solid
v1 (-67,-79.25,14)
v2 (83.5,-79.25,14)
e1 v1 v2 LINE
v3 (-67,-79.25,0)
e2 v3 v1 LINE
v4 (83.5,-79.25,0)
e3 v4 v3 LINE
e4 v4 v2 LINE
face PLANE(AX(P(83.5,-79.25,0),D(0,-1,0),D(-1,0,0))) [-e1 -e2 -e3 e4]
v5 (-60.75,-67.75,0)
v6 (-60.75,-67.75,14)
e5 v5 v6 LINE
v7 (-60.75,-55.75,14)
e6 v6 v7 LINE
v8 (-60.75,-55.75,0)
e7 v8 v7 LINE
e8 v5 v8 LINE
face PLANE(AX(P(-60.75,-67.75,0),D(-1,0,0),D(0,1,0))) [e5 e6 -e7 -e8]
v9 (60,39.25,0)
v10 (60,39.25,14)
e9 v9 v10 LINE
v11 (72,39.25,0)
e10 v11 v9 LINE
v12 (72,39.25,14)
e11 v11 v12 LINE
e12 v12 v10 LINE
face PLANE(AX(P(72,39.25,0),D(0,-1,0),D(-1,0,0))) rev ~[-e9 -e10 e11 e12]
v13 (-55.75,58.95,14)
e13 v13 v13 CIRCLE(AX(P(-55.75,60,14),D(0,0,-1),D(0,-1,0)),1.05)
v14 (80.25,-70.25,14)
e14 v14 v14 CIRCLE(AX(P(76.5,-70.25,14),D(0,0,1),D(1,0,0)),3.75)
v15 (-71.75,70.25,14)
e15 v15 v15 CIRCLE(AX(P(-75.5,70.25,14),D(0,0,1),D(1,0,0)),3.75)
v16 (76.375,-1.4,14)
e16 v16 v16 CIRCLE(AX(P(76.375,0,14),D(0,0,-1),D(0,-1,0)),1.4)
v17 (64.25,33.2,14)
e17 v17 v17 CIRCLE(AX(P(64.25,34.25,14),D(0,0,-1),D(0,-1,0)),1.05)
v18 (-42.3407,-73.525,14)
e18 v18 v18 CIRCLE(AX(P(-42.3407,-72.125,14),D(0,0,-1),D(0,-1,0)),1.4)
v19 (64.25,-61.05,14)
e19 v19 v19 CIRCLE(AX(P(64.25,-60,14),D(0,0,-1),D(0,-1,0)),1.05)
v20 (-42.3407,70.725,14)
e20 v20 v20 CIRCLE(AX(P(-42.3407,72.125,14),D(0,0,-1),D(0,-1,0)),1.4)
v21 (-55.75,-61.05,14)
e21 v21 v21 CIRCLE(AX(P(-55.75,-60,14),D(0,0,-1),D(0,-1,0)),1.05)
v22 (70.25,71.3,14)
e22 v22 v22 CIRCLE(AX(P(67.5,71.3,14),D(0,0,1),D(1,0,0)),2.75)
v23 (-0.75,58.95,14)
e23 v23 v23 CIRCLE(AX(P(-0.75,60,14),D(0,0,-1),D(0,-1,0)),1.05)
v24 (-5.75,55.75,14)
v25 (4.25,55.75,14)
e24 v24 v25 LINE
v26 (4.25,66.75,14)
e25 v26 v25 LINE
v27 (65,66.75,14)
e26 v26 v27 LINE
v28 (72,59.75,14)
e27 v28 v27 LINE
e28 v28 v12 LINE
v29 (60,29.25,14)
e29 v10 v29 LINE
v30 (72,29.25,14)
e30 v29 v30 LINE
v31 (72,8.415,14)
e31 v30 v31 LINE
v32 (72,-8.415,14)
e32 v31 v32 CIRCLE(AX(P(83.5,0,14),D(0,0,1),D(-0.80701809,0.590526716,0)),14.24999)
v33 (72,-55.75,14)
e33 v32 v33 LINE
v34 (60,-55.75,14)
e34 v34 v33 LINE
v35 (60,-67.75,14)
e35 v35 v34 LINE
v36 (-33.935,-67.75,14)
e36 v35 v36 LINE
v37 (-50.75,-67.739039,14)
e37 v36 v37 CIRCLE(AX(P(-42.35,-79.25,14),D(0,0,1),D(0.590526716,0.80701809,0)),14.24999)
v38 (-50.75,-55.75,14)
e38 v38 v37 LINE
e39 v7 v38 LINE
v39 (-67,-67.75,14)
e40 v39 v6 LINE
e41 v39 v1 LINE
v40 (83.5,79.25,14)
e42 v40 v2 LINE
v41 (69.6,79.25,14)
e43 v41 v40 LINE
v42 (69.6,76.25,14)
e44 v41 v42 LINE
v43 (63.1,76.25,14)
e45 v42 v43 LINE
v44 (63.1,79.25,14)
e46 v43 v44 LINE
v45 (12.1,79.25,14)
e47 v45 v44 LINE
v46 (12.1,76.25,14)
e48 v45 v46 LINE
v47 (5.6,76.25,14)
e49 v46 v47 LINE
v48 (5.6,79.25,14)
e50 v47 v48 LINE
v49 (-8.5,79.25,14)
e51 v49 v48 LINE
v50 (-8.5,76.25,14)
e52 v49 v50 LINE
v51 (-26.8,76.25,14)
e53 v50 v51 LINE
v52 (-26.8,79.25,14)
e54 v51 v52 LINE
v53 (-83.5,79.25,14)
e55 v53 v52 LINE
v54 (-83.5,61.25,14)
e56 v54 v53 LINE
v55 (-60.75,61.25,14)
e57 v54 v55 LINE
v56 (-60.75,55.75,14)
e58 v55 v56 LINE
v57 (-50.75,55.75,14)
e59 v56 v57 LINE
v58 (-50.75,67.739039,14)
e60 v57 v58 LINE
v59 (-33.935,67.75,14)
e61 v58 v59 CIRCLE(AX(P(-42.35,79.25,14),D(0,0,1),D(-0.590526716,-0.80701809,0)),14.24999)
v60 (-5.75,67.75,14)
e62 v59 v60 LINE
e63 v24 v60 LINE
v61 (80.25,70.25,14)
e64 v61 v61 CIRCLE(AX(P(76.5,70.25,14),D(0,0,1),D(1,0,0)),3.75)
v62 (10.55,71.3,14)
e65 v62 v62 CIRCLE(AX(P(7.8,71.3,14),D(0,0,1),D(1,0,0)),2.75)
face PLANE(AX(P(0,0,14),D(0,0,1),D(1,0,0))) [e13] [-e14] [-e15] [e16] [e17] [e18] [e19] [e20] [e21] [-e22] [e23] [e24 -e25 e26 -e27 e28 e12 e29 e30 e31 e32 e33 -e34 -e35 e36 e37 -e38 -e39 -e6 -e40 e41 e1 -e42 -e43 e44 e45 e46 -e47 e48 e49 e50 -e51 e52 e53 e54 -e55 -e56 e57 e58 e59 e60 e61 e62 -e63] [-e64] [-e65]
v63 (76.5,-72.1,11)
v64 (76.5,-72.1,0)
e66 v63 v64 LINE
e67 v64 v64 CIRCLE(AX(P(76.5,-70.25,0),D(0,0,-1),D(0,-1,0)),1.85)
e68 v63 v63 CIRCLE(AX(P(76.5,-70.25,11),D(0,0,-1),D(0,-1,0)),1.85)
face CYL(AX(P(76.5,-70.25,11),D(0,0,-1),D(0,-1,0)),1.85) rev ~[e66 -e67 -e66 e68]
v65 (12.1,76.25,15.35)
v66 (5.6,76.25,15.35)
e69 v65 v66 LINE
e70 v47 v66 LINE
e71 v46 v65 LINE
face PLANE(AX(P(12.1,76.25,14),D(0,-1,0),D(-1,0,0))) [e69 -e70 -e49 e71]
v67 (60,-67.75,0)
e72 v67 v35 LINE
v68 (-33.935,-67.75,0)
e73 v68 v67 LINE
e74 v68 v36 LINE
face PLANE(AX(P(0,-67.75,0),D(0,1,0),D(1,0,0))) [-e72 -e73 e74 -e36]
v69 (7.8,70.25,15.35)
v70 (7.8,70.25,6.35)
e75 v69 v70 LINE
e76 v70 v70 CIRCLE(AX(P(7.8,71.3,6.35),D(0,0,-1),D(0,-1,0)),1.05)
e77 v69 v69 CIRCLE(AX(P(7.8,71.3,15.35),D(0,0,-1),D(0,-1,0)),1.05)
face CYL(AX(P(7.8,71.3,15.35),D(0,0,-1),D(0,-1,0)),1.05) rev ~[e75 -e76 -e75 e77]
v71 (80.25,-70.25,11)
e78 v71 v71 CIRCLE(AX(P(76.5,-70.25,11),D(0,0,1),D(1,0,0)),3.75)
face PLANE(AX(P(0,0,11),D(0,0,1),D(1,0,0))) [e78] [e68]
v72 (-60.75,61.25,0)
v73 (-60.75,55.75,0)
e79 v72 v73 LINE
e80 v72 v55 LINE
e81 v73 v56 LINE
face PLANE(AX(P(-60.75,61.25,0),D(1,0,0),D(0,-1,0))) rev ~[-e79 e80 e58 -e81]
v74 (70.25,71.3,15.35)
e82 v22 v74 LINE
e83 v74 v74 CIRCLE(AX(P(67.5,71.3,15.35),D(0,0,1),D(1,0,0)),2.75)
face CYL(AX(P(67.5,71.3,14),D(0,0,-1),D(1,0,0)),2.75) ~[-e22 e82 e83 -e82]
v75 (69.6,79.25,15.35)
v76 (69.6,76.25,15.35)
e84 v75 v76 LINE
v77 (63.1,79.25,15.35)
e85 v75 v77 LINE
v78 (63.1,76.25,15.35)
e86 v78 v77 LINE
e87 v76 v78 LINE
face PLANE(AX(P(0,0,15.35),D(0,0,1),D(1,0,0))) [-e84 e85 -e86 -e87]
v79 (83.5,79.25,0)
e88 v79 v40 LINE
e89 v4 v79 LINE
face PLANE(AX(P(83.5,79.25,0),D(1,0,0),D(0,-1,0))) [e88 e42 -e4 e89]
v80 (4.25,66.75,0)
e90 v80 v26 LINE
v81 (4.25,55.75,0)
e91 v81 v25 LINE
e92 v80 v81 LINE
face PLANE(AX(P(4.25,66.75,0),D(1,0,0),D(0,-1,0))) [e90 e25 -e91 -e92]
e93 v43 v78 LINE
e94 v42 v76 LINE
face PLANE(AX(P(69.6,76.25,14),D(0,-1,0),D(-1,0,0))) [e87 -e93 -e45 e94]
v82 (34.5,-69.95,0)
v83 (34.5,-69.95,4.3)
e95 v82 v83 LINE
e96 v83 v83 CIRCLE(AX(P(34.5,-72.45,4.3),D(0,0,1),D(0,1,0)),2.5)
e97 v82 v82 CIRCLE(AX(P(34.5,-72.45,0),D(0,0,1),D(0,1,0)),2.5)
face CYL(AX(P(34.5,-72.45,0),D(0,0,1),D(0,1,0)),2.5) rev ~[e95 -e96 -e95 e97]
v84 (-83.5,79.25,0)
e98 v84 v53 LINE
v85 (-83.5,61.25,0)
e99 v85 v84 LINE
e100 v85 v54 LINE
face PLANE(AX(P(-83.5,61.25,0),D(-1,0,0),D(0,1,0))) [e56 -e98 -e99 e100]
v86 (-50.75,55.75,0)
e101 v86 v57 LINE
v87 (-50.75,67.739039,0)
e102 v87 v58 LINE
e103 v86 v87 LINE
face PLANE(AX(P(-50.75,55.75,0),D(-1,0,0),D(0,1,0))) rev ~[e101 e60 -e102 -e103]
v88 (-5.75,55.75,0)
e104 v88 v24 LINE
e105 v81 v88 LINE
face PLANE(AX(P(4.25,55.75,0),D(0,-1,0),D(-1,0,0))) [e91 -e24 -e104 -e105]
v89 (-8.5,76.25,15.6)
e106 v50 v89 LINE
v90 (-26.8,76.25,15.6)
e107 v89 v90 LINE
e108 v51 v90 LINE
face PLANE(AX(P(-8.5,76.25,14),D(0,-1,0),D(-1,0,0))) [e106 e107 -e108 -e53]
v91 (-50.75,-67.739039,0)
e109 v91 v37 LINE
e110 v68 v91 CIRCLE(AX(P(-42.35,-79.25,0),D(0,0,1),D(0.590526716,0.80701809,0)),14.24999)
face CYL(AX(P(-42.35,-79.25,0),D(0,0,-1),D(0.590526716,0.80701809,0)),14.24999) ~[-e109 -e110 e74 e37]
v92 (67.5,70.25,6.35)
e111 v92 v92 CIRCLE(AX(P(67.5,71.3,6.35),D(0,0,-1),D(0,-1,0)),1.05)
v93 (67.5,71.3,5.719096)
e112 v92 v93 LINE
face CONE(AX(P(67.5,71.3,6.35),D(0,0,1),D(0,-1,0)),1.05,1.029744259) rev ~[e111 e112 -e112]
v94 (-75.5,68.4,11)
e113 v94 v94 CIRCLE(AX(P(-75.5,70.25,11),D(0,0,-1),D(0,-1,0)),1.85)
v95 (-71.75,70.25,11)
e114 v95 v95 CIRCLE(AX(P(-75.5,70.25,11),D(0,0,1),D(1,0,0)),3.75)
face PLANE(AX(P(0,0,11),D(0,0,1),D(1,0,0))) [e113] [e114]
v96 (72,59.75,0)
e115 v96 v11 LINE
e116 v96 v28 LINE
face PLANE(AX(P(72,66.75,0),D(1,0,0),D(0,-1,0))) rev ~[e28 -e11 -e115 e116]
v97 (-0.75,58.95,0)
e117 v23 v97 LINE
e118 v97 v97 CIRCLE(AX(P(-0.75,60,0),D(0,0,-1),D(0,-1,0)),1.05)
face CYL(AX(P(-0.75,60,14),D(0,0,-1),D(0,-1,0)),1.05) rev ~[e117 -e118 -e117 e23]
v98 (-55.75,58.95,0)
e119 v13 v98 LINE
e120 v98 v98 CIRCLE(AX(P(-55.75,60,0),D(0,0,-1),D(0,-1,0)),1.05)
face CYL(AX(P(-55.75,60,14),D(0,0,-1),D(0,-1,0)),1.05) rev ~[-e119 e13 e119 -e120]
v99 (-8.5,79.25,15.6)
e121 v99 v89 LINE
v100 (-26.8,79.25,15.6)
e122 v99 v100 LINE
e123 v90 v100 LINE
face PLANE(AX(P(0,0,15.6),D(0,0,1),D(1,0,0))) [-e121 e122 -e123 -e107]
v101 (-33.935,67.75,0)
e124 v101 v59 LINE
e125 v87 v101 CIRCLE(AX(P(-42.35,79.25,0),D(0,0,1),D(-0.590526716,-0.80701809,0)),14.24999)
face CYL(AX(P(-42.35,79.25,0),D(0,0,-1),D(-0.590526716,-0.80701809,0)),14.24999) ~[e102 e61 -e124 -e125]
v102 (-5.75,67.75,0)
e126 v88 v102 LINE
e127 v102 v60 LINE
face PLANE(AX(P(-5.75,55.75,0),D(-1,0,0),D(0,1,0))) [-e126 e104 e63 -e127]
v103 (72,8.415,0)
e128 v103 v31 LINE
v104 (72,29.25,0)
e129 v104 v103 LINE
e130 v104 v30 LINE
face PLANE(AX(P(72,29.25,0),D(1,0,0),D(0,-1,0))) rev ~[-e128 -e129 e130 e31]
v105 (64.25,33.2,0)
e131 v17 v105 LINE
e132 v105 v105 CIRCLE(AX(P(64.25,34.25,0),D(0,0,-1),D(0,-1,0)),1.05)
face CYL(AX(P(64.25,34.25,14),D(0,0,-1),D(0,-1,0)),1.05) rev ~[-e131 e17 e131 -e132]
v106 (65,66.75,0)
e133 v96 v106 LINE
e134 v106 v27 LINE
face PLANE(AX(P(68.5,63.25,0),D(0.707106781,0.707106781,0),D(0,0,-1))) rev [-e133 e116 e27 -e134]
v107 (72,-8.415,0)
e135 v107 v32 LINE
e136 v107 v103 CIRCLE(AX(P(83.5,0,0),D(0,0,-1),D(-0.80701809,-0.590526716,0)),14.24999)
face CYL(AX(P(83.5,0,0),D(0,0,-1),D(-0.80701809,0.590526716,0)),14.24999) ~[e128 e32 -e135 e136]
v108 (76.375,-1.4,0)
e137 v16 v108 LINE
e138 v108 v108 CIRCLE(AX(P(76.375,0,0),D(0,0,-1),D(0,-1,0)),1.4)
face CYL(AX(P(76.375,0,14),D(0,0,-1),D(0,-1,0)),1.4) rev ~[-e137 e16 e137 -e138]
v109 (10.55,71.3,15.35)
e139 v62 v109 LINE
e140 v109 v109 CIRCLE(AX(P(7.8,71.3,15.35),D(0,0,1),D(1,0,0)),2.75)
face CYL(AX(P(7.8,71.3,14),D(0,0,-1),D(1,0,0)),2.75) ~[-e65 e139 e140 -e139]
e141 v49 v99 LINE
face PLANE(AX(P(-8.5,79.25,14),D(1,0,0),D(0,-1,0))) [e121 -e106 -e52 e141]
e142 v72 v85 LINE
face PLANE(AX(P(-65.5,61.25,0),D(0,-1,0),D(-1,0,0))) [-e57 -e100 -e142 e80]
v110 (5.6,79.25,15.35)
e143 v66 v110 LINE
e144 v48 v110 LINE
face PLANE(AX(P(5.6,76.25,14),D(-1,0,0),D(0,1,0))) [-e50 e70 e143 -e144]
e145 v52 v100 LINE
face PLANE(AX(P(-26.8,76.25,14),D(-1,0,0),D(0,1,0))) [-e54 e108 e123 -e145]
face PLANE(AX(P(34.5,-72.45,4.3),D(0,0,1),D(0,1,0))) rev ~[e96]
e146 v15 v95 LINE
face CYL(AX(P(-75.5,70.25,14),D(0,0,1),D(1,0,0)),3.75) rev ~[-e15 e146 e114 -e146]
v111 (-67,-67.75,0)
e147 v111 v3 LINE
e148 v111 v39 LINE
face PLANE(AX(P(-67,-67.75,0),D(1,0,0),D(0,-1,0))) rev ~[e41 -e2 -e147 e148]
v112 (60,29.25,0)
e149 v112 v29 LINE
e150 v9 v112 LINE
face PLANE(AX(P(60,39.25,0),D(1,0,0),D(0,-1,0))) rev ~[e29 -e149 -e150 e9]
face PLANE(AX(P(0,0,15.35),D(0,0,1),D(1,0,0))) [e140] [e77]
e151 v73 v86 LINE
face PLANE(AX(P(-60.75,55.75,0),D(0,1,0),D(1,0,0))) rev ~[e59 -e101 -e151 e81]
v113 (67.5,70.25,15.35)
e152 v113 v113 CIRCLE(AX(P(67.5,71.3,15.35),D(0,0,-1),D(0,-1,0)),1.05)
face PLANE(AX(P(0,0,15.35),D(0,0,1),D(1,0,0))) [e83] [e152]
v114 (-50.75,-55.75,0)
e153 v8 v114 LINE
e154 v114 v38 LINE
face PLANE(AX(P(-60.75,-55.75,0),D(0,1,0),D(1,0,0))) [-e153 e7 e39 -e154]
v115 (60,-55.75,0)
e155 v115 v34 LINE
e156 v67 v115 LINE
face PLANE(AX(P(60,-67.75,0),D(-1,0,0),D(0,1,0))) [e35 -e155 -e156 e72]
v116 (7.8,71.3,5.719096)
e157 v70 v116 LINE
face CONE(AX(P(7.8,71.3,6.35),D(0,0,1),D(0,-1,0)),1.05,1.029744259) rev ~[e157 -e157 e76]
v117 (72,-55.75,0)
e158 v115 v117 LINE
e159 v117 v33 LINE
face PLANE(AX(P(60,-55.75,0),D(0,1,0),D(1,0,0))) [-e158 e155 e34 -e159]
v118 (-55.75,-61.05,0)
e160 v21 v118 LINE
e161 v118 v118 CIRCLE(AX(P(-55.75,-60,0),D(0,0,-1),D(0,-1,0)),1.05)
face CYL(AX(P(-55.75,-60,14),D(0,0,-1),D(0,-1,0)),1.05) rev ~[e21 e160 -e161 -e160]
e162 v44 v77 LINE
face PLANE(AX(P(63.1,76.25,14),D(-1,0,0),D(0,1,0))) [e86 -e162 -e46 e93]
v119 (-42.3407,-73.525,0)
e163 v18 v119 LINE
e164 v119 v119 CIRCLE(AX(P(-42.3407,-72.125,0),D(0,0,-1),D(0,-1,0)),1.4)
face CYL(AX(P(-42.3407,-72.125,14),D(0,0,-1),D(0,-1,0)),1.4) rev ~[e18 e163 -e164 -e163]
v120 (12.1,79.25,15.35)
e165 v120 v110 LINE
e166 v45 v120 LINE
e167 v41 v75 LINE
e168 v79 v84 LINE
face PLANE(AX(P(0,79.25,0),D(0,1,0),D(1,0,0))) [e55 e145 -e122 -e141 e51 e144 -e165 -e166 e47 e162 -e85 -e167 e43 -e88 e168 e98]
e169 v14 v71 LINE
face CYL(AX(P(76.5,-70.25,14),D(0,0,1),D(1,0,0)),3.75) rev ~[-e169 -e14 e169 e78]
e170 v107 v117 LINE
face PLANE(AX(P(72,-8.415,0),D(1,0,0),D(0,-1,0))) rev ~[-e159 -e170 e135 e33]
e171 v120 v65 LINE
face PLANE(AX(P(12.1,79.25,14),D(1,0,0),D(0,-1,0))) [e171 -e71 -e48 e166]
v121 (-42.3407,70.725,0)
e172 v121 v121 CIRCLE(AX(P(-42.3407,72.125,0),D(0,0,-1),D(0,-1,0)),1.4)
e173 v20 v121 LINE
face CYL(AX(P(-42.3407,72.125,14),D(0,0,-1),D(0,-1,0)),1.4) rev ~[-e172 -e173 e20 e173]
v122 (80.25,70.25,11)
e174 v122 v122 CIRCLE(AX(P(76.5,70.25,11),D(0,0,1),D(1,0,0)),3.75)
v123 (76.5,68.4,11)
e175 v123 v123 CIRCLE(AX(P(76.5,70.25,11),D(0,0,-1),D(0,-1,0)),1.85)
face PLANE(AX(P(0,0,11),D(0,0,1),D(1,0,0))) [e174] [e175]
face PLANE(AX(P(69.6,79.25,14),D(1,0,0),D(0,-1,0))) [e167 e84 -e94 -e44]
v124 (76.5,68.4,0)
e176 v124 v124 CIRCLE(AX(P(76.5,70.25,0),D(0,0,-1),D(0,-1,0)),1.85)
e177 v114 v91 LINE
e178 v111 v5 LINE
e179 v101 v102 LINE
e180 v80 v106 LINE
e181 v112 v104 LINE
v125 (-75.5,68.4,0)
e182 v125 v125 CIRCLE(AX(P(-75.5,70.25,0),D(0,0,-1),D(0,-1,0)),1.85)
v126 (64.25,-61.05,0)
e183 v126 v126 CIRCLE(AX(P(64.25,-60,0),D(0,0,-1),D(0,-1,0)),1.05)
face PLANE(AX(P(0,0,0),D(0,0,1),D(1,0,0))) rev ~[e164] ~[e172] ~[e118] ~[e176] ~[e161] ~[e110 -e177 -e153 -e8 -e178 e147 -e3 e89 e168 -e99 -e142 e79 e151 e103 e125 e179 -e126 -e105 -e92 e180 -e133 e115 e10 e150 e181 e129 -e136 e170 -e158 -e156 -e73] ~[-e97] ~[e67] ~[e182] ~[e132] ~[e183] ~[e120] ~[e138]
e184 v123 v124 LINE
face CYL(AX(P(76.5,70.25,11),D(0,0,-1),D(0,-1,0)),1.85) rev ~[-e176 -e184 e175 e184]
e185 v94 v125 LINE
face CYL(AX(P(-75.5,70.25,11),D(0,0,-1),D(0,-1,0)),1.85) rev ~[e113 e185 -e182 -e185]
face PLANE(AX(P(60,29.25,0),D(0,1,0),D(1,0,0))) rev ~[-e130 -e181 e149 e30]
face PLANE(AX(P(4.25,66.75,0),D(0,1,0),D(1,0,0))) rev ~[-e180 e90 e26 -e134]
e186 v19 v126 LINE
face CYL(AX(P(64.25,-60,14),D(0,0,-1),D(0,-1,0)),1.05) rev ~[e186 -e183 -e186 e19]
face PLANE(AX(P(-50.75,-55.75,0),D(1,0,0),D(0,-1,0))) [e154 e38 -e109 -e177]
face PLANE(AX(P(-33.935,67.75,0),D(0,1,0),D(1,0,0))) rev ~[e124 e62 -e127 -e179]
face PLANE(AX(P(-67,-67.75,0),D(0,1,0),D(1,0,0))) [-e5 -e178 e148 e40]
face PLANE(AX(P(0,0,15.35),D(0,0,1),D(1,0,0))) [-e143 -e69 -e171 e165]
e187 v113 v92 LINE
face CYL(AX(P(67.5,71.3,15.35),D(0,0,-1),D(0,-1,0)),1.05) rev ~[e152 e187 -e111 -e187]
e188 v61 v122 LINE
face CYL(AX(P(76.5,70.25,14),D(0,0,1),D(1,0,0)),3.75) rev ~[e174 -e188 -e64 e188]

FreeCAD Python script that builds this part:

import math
import FreeCAD as App
import Part
import Sketcher
Q = App.Units.Quantity


def edges_at(feature, points):
    """Names of the edges that pass closest to the given points."""
    edges = feature.Shape.Edges
    near = lambda p: min(range(len(edges)), key=lambda i: edges[i].distToShape(Part.Vertex(*p))[0])
    return sorted({f"Edge{near(p) + 1}" for p in points})


def add_polygon(sketch, points):
    """Adds a closed chain of lines whose ends are joined by coincident constraints."""
    first, n = sketch.GeometryCount, len(points)
    for a, b in zip(points, points[1:] + points[:1]):
        sketch.addGeometry(Part.LineSegment(App.Vector(*a, 0), App.Vector(*b, 0)), False)
    for i in range(n):
        sketch.addConstraint(Sketcher.Constraint("Coincident", first + i, 2, first + (i + 1) % n, 1))

doc = App.newDocument("Part")
body = doc.addObject("PartDesign::Body", "Body")

sketch1 = body.newObject("Sketcher::SketchObject", "Sketch")
sketch1.AttachmentSupport = (doc.getObject("XY_Plane"), [""])
sketch1.MapMode = "FlatFace"
sketch1.addGeometry([
    Part.LineSegment(App.Vector(84, 79, 0), App.Vector(-84, 79, 0)),
    Part.LineSegment(App.Vector(-84, 79, 0), App.Vector(-84, 61, 0)),
    Part.LineSegment(App.Vector(-84, 61, 0), App.Vector(-61, 61, 0)),
    Part.LineSegment(App.Vector(-61, 61, 0), App.Vector(-61, 56, 0)),
    Part.LineSegment(App.Vector(-61, 56, 0), App.Vector(-51, 56, 0)),
    Part.LineSegment(App.Vector(-51, 56, 0), App.Vector(-51, 68, 0)),
    Part.ArcOfCircle(Part.Circle(App.Vector(-42, 79, 0), App.Vector(0, 0, 1), 14), math.radians(-126), math.radians(-54)),
    Part.LineSegment(App.Vector(-34, 68, 0), App.Vector(-6, 68, 0)),
    Part.LineSegment(App.Vector(-6, 68, 0), App.Vector(-6, 56, 0)),
    Part.LineSegment(App.Vector(-6, 56, 0), App.Vector(4, 56, 0)),
    Part.LineSegment(App.Vector(4, 56, 0), App.Vector(4, 67, 0)),
    Part.LineSegment(App.Vector(4, 67, 0), App.Vector(72, 67, 0)),
    Part.LineSegment(App.Vector(72, 67, 0), App.Vector(72, 39, 0)),
    Part.LineSegment(App.Vector(72, 39, 0), App.Vector(60, 39, 0)),
    Part.LineSegment(App.Vector(60, 39, 0), App.Vector(60, 29, 0)),
    Part.LineSegment(App.Vector(60, 29, 0), App.Vector(72, 29, 0)),
    Part.LineSegment(App.Vector(72, 29, 0), App.Vector(72, 8, 0)),
    Part.ArcOfCircle(Part.Circle(App.Vector(84, 0, 0), App.Vector(0, 0, 1), 14), math.radians(144), math.radians(216)),
    Part.LineSegment(App.Vector(72, -8, 0), App.Vector(72, -56, 0)),
    Part.LineSegment(App.Vector(72, -56, 0), App.Vector(60, -56, 0)),
    Part.LineSegment(App.Vector(60, -56, 0), App.Vector(60, -68, 0)),
    Part.LineSegment(App.Vector(60, -68, 0), App.Vector(-34, -68, 0)),
    Part.ArcOfCircle(Part.Circle(App.Vector(-42, -79, 0), App.Vector(0, 0, 1), 14), math.radians(54), math.radians(126)),
    Part.LineSegment(App.Vector(-51, -68, 0), App.Vector(-51, -56, 0)),
    Part.LineSegment(App.Vector(-51, -56, 0), App.Vector(-61, -56, 0)),
    Part.LineSegment(App.Vector(-61, -56, 0), App.Vector(-61, -68, 0)),
    Part.LineSegment(App.Vector(-61, -68, 0), App.Vector(-67, -68, 0)),
    Part.LineSegment(App.Vector(-67, -68, 0), App.Vector(-67, -79, 0)),
    Part.LineSegment(App.Vector(-67, -79, 0), App.Vector(84, -79, 0)),
    Part.LineSegment(App.Vector(84, -79, 0), App.Vector(84, 79, 0)),
], False)
sketch1.addConstraint([
    Sketcher.Constraint("Coincident", 0, 2, 1, 1),
    Sketcher.Constraint("Coincident", 1, 2, 2, 1),
    Sketcher.Constraint("Coincident", 2, 2, 3, 1),
    Sketcher.Constraint("Coincident", 3, 2, 4, 1),
    Sketcher.Constraint("Coincident", 4, 2, 5, 1),
    Sketcher.Constraint("Coincident", 5, 2, 6, 1),
    Sketcher.Constraint("Coincident", 6, 2, 7, 1),
    Sketcher.Constraint("Coincident", 7, 2, 8, 1),
    Sketcher.Constraint("Coincident", 8, 2, 9, 1),
    Sketcher.Constraint("Coincident", 9, 2, 10, 1),
    Sketcher.Constraint("Coincident", 10, 2, 11, 1),
    Sketcher.Constraint("Coincident", 11, 2, 12, 1),
    Sketcher.Constraint("Coincident", 12, 2, 13, 1),
    Sketcher.Constraint("Coincident", 13, 2, 14, 1),
    Sketcher.Constraint("Coincident", 14, 2, 15, 1),
    Sketcher.Constraint("Coincident", 15, 2, 16, 1),
    Sketcher.Constraint("Coincident", 16, 2, 17, 1),
    Sketcher.Constraint("Coincident", 17, 2, 18, 1),
    Sketcher.Constraint("Coincident", 18, 2, 19, 1),
    Sketcher.Constraint("Coincident", 19, 2, 20, 1),
    Sketcher.Constraint("Coincident", 20, 2, 21, 1),
    Sketcher.Constraint("Coincident", 21, 2, 22, 1),
    Sketcher.Constraint("Coincident", 22, 2, 23, 1),
    Sketcher.Constraint("Coincident", 23, 2, 24, 1),
    Sketcher.Constraint("Coincident", 24, 2, 25, 1),
    Sketcher.Constraint("Coincident", 25, 2, 26, 1),
    Sketcher.Constraint("Coincident", 26, 2, 27, 1),
    Sketcher.Constraint("Coincident", 27, 2, 28, 1),
    Sketcher.Constraint("Coincident", 28, 2, 29, 1),
    Sketcher.Constraint("Coincident", 29, 2, 0, 1),
    Sketcher.Constraint("Horizontal", 0),
    Sketcher.Constraint("Vertical", 1),
    Sketcher.Constraint("Horizontal", 2),
    Sketcher.Constraint("Vertical", 3),
    Sketcher.Constraint("Horizontal", 4),
    Sketcher.Constraint("Vertical", 5),
    Sketcher.Constraint("Horizontal", 7),
    Sketcher.Constraint("Vertical", 8),
    Sketcher.Constraint("Horizontal", 9),
    Sketcher.Constraint("Vertical", 10),
    Sketcher.Constraint("Horizontal", 11),
    Sketcher.Constraint("Vertical", 12),
    Sketcher.Constraint("Horizontal", 13),
    Sketcher.Constraint("Vertical", 14),
    Sketcher.Constraint("Horizontal", 15),
    Sketcher.Constraint("Vertical", 16),
    Sketcher.Constraint("Vertical", 18),
    Sketcher.Constraint("Horizontal", 19),
    Sketcher.Constraint("Vertical", 20),
    Sketcher.Constraint("Horizontal", 21),
    Sketcher.Constraint("Vertical", 23),
    Sketcher.Constraint("Horizontal", 24),
    Sketcher.Constraint("Vertical", 25),
    Sketcher.Constraint("Horizontal", 26),
    Sketcher.Constraint("Vertical", 27),
    Sketcher.Constraint("Horizontal", 28),
    Sketcher.Constraint("Vertical", 29),
    Sketcher.Constraint("Equal", 6, 17),
    Sketcher.Constraint("Equal", 17, 22),
    Sketcher.Constraint("Symmetric", 0, 2, 28, 2, -1, 1),
    Sketcher.Constraint("Symmetric", 6, 3, 22, 3, -1),
    Sketcher.Constraint("Symmetric", 16, 2, 17, 2, -1),
    Sketcher.Constraint("Symmetric", 4, 2, 23, 2, -1),
    Sketcher.Constraint("Horizontal", 6, 3, 0, 2),
    Sketcher.Constraint("Horizontal", 4, 2, 8, 2),
    Sketcher.Constraint("Horizontal", 19, 2, 23, 2),
    Sketcher.Constraint("Horizontal", 21, 2, 25, 2),
    Sketcher.Constraint("Vertical", 12, 2, 15, 2),
    Sketcher.Constraint("Vertical", 14, 2, 19, 2),
    Sketcher.Constraint("Vertical", 6, 2, 21, 2),
    Sketcher.Constraint("Vertical", 3, 2, 24, 2),
    Sketcher.Constraint("Vertical", 17, 3, 28, 2),
    Sketcher.Constraint("Equal", 4, 9),
    Sketcher.Constraint("Equal", 19, 8),
    Sketcher.Constraint("Equal", 24, 14),
    Sketcher.Constraint("DistanceX", 4, 1, 4, 2, Q("10 mm")),
    Sketcher.Constraint("DistanceX", 13, 2, 13, 1, Q("12 mm")),
    Sketcher.Constraint("DistanceY", 1, 2, 1, 1, Q("18 mm")),
    Sketcher.Constraint("Radius", 6, Q("14.25 mm")),
    Sketcher.Constraint("DistanceY", 27, 2, 27, 1, Q("11.5 mm")),
    Sketcher.Constraint("DistanceY", 29, 1, 29, 2, Q("158.5 mm")),
    Sketcher.Constraint("DistanceX", 26, 2, -1, 1, Q("67 mm")),
    Sketcher.Constraint("DistanceY", 12, 2, 29, 2, Q("40 mm")),
    Sketcher.Constraint("DistanceX", 11, 1, 11, 2, Q("67.75 mm")),
    Sketcher.Constraint("DistanceX", -1, 1, 17, 3, Q("83.5 mm")),
    Sketcher.Constraint("DistanceY", 10, 2, 6, 3, Q("12.5 mm")),
    Sketcher.Constraint("DistanceX", 11, 2, 17, 3, Q("11.5 mm")),
    Sketcher.Constraint("DistanceX", 6, 3, -1, 1, Q("42.35 mm")),
    Sketcher.Constraint("DistanceX", 4, 2, -1, 1, Q("50.75 mm")),
])
pad1 = body.newObject("PartDesign::Pad", "Pad")
pad1.Profile = sketch1
pad1.Length = 14
doc.recompute()

chamfer = body.newObject("PartDesign::Chamfer", "Chamfer")
chamfer.Base = (pad1, edges_at(pad1, [(72, 66.75, 7)]))
chamfer.Size = 7

sketch2 = body.newObject("Sketcher::SketchObject", "Sketch001")
sketch2.AttachmentSupport = (doc.getObject("XY_Plane"), [""])
sketch2.MapMode = "FlatFace"
sketch2.AttachmentOffset = App.Placement(App.Vector(0, 0, 14), App.Rotation())
sketch2.addGeometry([
    Part.Circle(App.Vector(7.8, 71.3, 0), App.Vector(0, 0, 1), 2.8),
    Part.Circle(App.Vector(67.5, 71.3, 0), App.Vector(0, 0, 1), 2.8),
], False)
sketch2.addConstraint([
    Sketcher.Constraint("Equal", 0, 1),
    Sketcher.Constraint("Horizontal", 0, 3, 1, 3),
    Sketcher.Constraint("Diameter", 0, Q("5.5 mm")),
    Sketcher.Constraint("DistanceX", 0, 3, 1, 3, Q("59.7 mm")),
    Sketcher.Constraint("DistanceX", -1, 1, 0, 3, Q("7.8 mm")),
    Sketcher.Constraint("DistanceY", -1, 1, 0, 3, Q("71.3 mm")),
])
pad2 = body.newObject("PartDesign::Pad", "Pad001")
pad2.Profile = sketch2
pad2.Length = 1.35

sketch3 = body.newObject("Sketcher::SketchObject", "Sketch002")
sketch3.AttachmentSupport = (doc.getObject("XY_Plane"), [""])
sketch3.MapMode = "FlatFace"
sketch3.AttachmentOffset = App.Placement(App.Vector(0, 0, 15.35), App.Rotation())
sketch3.addGeometry([
    Part.Circle(App.Vector(7.8, 71.3, 0), App.Vector(0, 0, 1), 1.1),
    Part.Circle(App.Vector(67.5, 71.3, 0), App.Vector(0, 0, 1), 1.1),
], False)
sketch3.addConstraint([
    Sketcher.Constraint("Equal", 0, 1),
    Sketcher.Constraint("Horizontal", 0, 3, 1, 3),
    Sketcher.Constraint("Diameter", 0, Q("2.1 mm")),
    Sketcher.Constraint("DistanceX", -1, 1, 0, 3, Q("7.8 mm")),
    Sketcher.Constraint("DistanceY", -1, 1, 0, 3, Q("71.3 mm")),
    Sketcher.Constraint("DistanceX", -1, 1, 1, 3, Q("67.5 mm")),
])
doc.recompute()
hole = body.newObject("PartDesign::Hole", "Hole")
hole.Profile = sketch3
hole.ThreadType = "None"
hole.Diameter = 2.1
hole.DepthType = "Dimension"
hole.Depth = 9
hole.DrillPoint = "Angled"
hole.DrillPointAngle = 118

sketch4 = body.newObject("Sketcher::SketchObject", "Sketch003")
sketch4.AttachmentSupport = (doc.getObject("XY_Plane"), [""])
sketch4.MapMode = "FlatFace"
sketch4.AttachmentOffset = App.Placement(App.Vector(0, 0, 14), App.Rotation())
sketch4.addGeometry([
    Part.Circle(App.Vector(-75.5, 70.2, 0), App.Vector(0, 0, 1), 3.8),
    Part.Circle(App.Vector(76.5, 70.2, 0), App.Vector(0, 0, 1), 3.8),
    Part.Circle(App.Vector(76.5, -70.2, 0), App.Vector(0, 0, 1), 3.8),
], False)
sketch4.addConstraint([
    Sketcher.Constraint("Equal", 0, 1),
    Sketcher.Constraint("Equal", 1, 2),
    Sketcher.Constraint("Symmetric", 1, 3, 2, 3, -1),
    Sketcher.Constraint("Horizontal", 0, 3, 1, 3),
    Sketcher.Constraint("Diameter", 0, Q("7.5 mm")),
    Sketcher.Constraint("DistanceX", 0, 3, 1, 3, Q("152 mm")),
    Sketcher.Constraint("DistanceX", 0, 3, -1, 1, Q("75.5 mm")),
    Sketcher.Constraint("DistanceY", 2, 3, 1, 3, Q("140.5 mm")),
])
pocket1 = body.newObject("PartDesign::Pocket", "Pocket")
pocket1.Profile = sketch4
pocket1.Length = 3

sketch5 = body.newObject("Sketcher::SketchObject", "Sketch004")
sketch5.AttachmentSupport = (doc.getObject("XY_Plane"), [""])
sketch5.MapMode = "FlatFace"
sketch5.AttachmentOffset = App.Placement(App.Vector(0, 0, 11), App.Rotation())
sketch5.addGeometry([
    Part.Circle(App.Vector(-75.5, 70.2, 0), App.Vector(0, 0, 1), 1.9),
    Part.Circle(App.Vector(76.5, 70.2, 0), App.Vector(0, 0, 1), 1.9),
    Part.Circle(App.Vector(76.5, -70.2, 0), App.Vector(0, 0, 1), 1.9),
], False)
sketch5.addConstraint([
    Sketcher.Constraint("Equal", 0, 1),
    Sketcher.Constraint("Equal", 1, 2),
    Sketcher.Constraint("Symmetric", 1, 3, 2, 3, -1),
    Sketcher.Constraint("Horizontal", 0, 3, 1, 3),
    Sketcher.Constraint("Diameter", 0, Q("3.7 mm")),
    Sketcher.Constraint("DistanceX", 0, 3, 1, 3, Q("152 mm")),
    Sketcher.Constraint("DistanceX", 0, 3, -1, 1, Q("75.5 mm")),
    Sketcher.Constraint("DistanceY", 2, 3, 1, 3, Q("140.5 mm")),
])
doc.recompute()
hole2 = body.newObject("PartDesign::Hole", "Hole001")
hole2.Profile = sketch5
hole2.ThreadType = "None"
hole2.Diameter = 3.7
hole2.DepthType = "ThroughAll"

sketch6 = body.newObject("Sketcher::SketchObject", "Sketch005")
sketch6.AttachmentSupport = (doc.getObject("XY_Plane"), [""])
sketch6.MapMode = "FlatFace"
sketch6.addGeometry(Part.Circle(App.Vector(34.5, -72.5, 0), App.Vector(0, 0, 1), 2.5), False)
sketch6.addConstraint([
    Sketcher.Constraint("Diameter", 0, Q("5 mm")),
    Sketcher.Constraint("DistanceX", -1, 1, 0, 3, Q("34.5 mm")),
    Sketcher.Constraint("DistanceY", 0, 3, -1, 1, Q("72.45 mm")),
])
doc.recompute()
hole3 = body.newObject("PartDesign::Hole", "Hole002")
hole3.Profile = sketch6
hole3.ThreadType = "None"
hole3.Diameter = 5
hole3.DepthType = "Dimension"
hole3.Depth = 4.3
hole3.DrillPoint = "Flat"
hole3.Reversed = True

sketch7 = body.newObject("Sketcher::SketchObject", "Sketch006")
sketch7.AttachmentSupport = (doc.getObject("XY_Plane"), [""])
sketch7.MapMode = "FlatFace"
sketch7.AttachmentOffset = App.Placement(App.Vector(0, 0, 14), App.Rotation())
sketch7.addGeometry([
    Part.Circle(App.Vector(-55.8, 60, 0), App.Vector(0, 0, 1), 1.1),
    Part.Circle(App.Vector(-0.8, 60, 0), App.Vector(0, 0, 1), 1.1),
    Part.Circle(App.Vector(64.2, 34.2, 0), App.Vector(0, 0, 1), 1.1),
    Part.Circle(App.Vector(64.2, -60, 0), App.Vector(0, 0, 1), 1.1),
    Part.Circle(App.Vector(-55.8, -60, 0), App.Vector(0, 0, 1), 1.1),
], False)
sketch7.addConstraint([
    Sketcher.Constraint("Equal", 0, 1),
    Sketcher.Constraint("Equal", 1, 2),
    Sketcher.Constraint("Equal", 2, 3),
    Sketcher.Constraint("Equal", 3, 4),
    Sketcher.Constraint("Symmetric", 0, 3, 4, 3, -1),
    Sketcher.Constraint("Horizontal", 0, 3, 1, 3),
    Sketcher.Constraint("Horizontal", 3, 3, 4, 3),
    Sketcher.Constraint("Vertical", 2, 3, 3, 3),
    Sketcher.Constraint("Diameter", 0, Q("2.1 mm")),
    Sketcher.Constraint("DistanceY", -1, 1, 0, 3, Q("60 mm")),
    Sketcher.Constraint("DistanceX", 0, 3, 1, 3, Q("55 mm")),
    Sketcher.Constraint("DistanceX", 1, 3, 2, 3, Q("65 mm")),
    Sketcher.Constraint("DistanceX", 0, 3, -1, 1, Q("55.75 mm")),
    Sketcher.Constraint("DistanceY", -1, 1, 2, 3, Q("34.25 mm")),
])
doc.recompute()
hole4 = body.newObject("PartDesign::Hole", "Hole003")
hole4.Profile = sketch7
hole4.ThreadType = "None"
hole4.Diameter = 2.1
hole4.DepthType = "Dimension"
hole4.Depth = 16
hole4.DrillPoint = "Angled"
hole4.DrillPointAngle = 118

sketch8 = body.newObject("Sketcher::SketchObject", "Sketch007")
sketch8.AttachmentSupport = (doc.getObject("XY_Plane"), [""])
sketch8.MapMode = "FlatFace"
sketch8.AttachmentOffset = App.Placement(App.Vector(0, 0, 14), App.Rotation())
add_polygon(sketch8, [(12.1, 79.2), (5.6, 79.2), (5.6, 76.2), (12.1, 76.2)])
add_polygon(sketch8, [(69.6, 79.2), (63.1, 79.2), (63.1, 76.2), (69.6, 76.2)])
sketch8.addConstraint([
    Sketcher.Constraint("Horizontal", 0),
    Sketcher.Constraint("Vertical", 1),
    Sketcher.Constraint("Horizontal", 2),
    Sketcher.Constraint("Vertical", 3),
    Sketcher.Constraint("Horizontal", 4),
    Sketcher.Constraint("Vertical", 5),
    Sketcher.Constraint("Horizontal", 6),
    Sketcher.Constraint("Vertical", 7),
    Sketcher.Constraint("Horizontal", 3, 2, 4, 2),
    Sketcher.Constraint("Horizontal", 2, 2, 5, 2),
    Sketcher.Constraint("Equal", 2, 4),
    Sketcher.Constraint("DistanceY", 1, 2, 1, 1, Q("3 mm")),
    Sketcher.Constraint("DistanceX", 0, 2, 0, 1, Q("6.5 mm")),
    Sketcher.Constraint("DistanceX", 1, 2, 6, 2, Q("64 mm")),
    Sketcher.Constraint("DistanceX", -1, 1, 0, 2, Q("5.6 mm")),
    Sketcher.Constraint("DistanceY", -1, 1, 0, 2, Q("79.25 mm")),
])
pad3 = body.newObject("PartDesign::Pad", "Pad002")
pad3.Profile = sketch8
pad3.Length = 1.35

sketch9 = body.newObject("Sketcher::SketchObject", "Sketch008")
sketch9.AttachmentSupport = (doc.getObject("XY_Plane"), [""])
sketch9.MapMode = "FlatFace"
sketch9.AttachmentOffset = App.Placement(App.Vector(0, 0, 14), App.Rotation())
add_polygon(sketch9, [(-8.5, 76.2), (-8.5, 79.2), (-26.8, 79.2), (-26.8, 76.2)])
sketch9.addConstraint([
    Sketcher.Constraint("Vertical", 0),
    Sketcher.Constraint("Horizontal", 1),
    Sketcher.Constraint("Vertical", 2),
    Sketcher.Constraint("Horizontal", 3),
    Sketcher.Constraint("DistanceY", 0, 1, 0, 2, Q("3 mm")),
    Sketcher.Constraint("DistanceX", 1, 2, 1, 1, Q("18.3 mm")),
    Sketcher.Constraint("DistanceX", 0, 2, -1, 1, Q("8.5 mm")),
    Sketcher.Constraint("DistanceY", -1, 1, 0, 2, Q("79.25 mm")),
])
pad4 = body.newObject("PartDesign::Pad", "Pad003")
pad4.Profile = sketch9
pad4.Length = 1.6

sketch10 = body.newObject("Sketcher::SketchObject", "Sketch009")
sketch10.AttachmentSupport = (doc.getObject("XY_Plane"), [""])
sketch10.MapMode = "FlatFace"
sketch10.AttachmentOffset = App.Placement(App.Vector(0, 0, 14), App.Rotation())
sketch10.addGeometry([
    Part.Circle(App.Vector(-42.3, 72.1, 0), App.Vector(0, 0, 1), 1.4),
    Part.Circle(App.Vector(76.4, 0, 0), App.Vector(0, 0, 1), 1.4),
    Part.Circle(App.Vector(-42.3, -72.1, 0), App.Vector(0, 0, 1), 1.4),
], False)
sketch10.addConstraint([
    Sketcher.Constraint("Equal", 0, 1),
    Sketcher.Constraint("Equal", 1, 2),
    Sketcher.Constraint("Symmetric", 0, 3, 2, 3, -1),
    Sketcher.Constraint("PointOnObject", 1, 3, -1),
    Sketcher.Constraint("Diameter", 0, Q("2.8 mm")),
    Sketcher.Constraint("DistanceY", 2, 3, 0, 3, Q("144.25 mm")),
    Sketcher.Constraint("DistanceX", -1, 1, 1, 3, Q("76.375 mm")),
    Sketcher.Constraint("DistanceX", 0, 3, -1, 1, Q("42.3407 mm")),
])
doc.recompute()
hole5 = body.newObject("PartDesign::Hole", "Hole004")
hole5.Profile = sketch10
hole5.ThreadType = "None"
hole5.Diameter = 2.8
hole5.DepthType = "Dimension"
hole5.Depth = 14
hole5.DrillPoint = "Flat"

doc.recompute()
